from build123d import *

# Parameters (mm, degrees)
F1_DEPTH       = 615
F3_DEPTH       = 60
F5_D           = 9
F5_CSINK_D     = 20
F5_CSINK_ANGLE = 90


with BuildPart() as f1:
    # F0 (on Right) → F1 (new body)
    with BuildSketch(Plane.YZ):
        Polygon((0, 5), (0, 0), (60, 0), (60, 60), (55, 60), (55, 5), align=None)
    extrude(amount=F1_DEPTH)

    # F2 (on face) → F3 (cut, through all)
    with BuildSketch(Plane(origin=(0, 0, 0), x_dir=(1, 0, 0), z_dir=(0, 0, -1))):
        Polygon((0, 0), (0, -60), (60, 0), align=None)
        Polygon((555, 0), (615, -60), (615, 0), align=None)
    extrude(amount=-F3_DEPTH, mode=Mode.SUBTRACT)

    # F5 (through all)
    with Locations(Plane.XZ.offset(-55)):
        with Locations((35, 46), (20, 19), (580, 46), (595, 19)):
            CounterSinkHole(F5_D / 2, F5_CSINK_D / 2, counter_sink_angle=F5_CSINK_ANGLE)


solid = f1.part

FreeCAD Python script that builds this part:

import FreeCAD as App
import Part
import Sketcher
from FreeCAD import Vector


def add_polygon(sketch, points):
    """Adds a closed chain of lines whose ends are joined by coincident constraints."""
    first, n = sketch.GeometryCount, len(points)
    for a, b in zip(points, points[1:] + points[:1]):
        sketch.addGeometry(Part.LineSegment(App.Vector(*a, 0), App.Vector(*b, 0)), False)
    for i in range(n):
        sketch.addConstraint(Sketcher.Constraint("Coincident", first + i, 2, first + (i + 1) % n, 1))

doc = App.newDocument("Part")
params = doc.addObject("Spreadsheet::Sheet", "Params")
for row, (alias, value) in enumerate([
    ("sketch1_width", "60 mm"),
    ("sketch1_width2", "5 mm"),
    ("pad1_length", "615 mm"),
    ("sketch2_width", "60 mm"),
    ("sketch3_diameter", "9 mm"),
    ("hole_diameter", "9 mm"),
    ("hole_csink_diameter", "20 mm"),
], start=1):
    params.set(f"A{row}", alias)
    params.set(f"B{row}", "=" + value)
    params.setAlias(f"B{row}", alias)

body = doc.addObject("PartDesign::Body", "Body")

sketch1 = doc.addObject("Sketcher::SketchObject", "Sketch")
body.addObject(sketch1)
sketch1.AttachmentSupport = (doc.YZ_Plane, [""])
sketch1.MapMode = "FlatFace"
add_polygon(sketch1, [(0, 5), (0, 0), (60, 0), (60, 60), (55, 60), (55, 5)])
sketch1.addConstraint([
    Sketcher.Constraint("Vertical", 0),
    Sketcher.Constraint("Horizontal", 1),
    Sketcher.Constraint("Vertical", 2),
    Sketcher.Constraint("Horizontal", 3),
    Sketcher.Constraint("Vertical", 4),
    Sketcher.Constraint("Horizontal", 5),
    Sketcher.Constraint("Coincident", 0, 2, -1, 1),
    Sketcher.Constraint("Equal", 3, 0),
    Sketcher.Constraint("Equal", 1, 2),
    Sketcher.Constraint("DistanceX", 1, 1, 1, 2, 60.0),
    Sketcher.Constraint("DistanceX", 3, 2, 3, 1, 5.0),
])
sketch1.setExpression("Constraints[15]", "Params.sketch1_width")
sketch1.setExpression("Constraints[16]", "Params.sketch1_width2")
pad1 = doc.addObject("PartDesign::Pad", "Pad")
body.addObject(pad1)
pad1.Profile = sketch1
pad1.setExpression("Length", "Params.pad1_length")

sketch2 = doc.addObject("Sketcher::SketchObject", "Sketch001")
body.addObject(sketch2)
sketch2.AttachmentSupport = (doc.XY_Plane, [""])
sketch2.MapMode = "FlatFace"
add_polygon(sketch2, [(0, 0), (0, 60), (60, 0)])
add_polygon(sketch2, [(555, 0), (615, 60), (615, 0)])
sketch2.addConstraint([
    Sketcher.Constraint("Vertical", 0),
    Sketcher.Constraint("Horizontal", 2),
    Sketcher.Constraint("Vertical", 4),
    Sketcher.Constraint("Horizontal", 5),
    Sketcher.Constraint("Coincident", 2, 2, -1, 1),
    Sketcher.Constraint("PointOnObject", 4, 2, -1),
    Sketcher.Constraint("Perpendicular", 1, 3),
    Sketcher.Constraint("Horizontal", 0, 2, 3, 2),
    Sketcher.Constraint("Equal", 2, 5),
    Sketcher.Constraint("DistanceX", 2, 2, 2, 1, 60.0),
    Sketcher.Constraint("DistanceX", -1, 1, 3, 2, 615.0),
])
sketch2.setExpression("Constraints[15]", "Params.sketch2_width")
pocket1 = doc.addObject("PartDesign::Pocket", "Pocket")
body.addObject(pocket1)
pocket1.Profile = sketch2
pocket1.Type = "ThroughAll"
pocket1.Reversed = True

sketch3 = doc.addObject("Sketcher::SketchObject", "Sketch002")
body.addObject(sketch3)
sketch3.AttachmentSupport = (doc.XZ_Plane, [""])
sketch3.MapMode = "FlatFace"
sketch3.AttachmentOffset = App.Placement(Vector(0, 0, -55), App.Rotation())
sketch3.addGeometry([
    Part.Circle(Vector(35, 46, 0), Vector(0, 0, 1), 4.5),
    Part.Circle(Vector(20, 19, 0), Vector(0, 0, 1), 4.5),
    Part.Circle(Vector(580, 46, 0), Vector(0, 0, 1), 4.5),
    Part.Circle(Vector(595, 19, 0), Vector(0, 0, 1), 4.5),
], False)
sketch3.addConstraint([
    Sketcher.Constraint("Equal", 0, 1),
    Sketcher.Constraint("Equal", 1, 2),
    Sketcher.Constraint("Equal", 2, 3),
    Sketcher.Constraint("Horizontal", 0, 3, 2, 3),
    Sketcher.Constraint("Horizontal", 1, 3, 3, 3),
    Sketcher.Constraint("Diameter", 0, 9.0),
    Sketcher.Constraint("DistanceX", -1, 1, 0, 3, 35.0),
    Sketcher.Constraint("DistanceY", -1, 1, 0, 3, 46.0),
    Sketcher.Constraint("DistanceX", -1, 1, 1, 3, 20.0),
    Sketcher.Constraint("DistanceY", -1, 1, 1, 3, 19.0),
    Sketcher.Constraint("DistanceX", -1, 1, 2, 3, 580.0),
    Sketcher.Constraint("DistanceX", -1, 1, 3, 3, 595.0),
])
sketch3.setExpression("Constraints[5]", "Params.sketch3_diameter")
doc.recompute()
hole = doc.addObject("PartDesign::Hole", "Hole")
body.addObject(hole)
hole.Profile = sketch3
hole.ThreadType = "None"
hole.setExpression("Diameter", "Params.hole_diameter")
hole.DepthType = "ThroughAll"
hole.HoleCutType = "Countersink"
hole.setExpression("HoleCutDiameter", "Params.hole_csink_diameter")
hole.HoleCutCountersinkAngle = 90

doc.recompute()
